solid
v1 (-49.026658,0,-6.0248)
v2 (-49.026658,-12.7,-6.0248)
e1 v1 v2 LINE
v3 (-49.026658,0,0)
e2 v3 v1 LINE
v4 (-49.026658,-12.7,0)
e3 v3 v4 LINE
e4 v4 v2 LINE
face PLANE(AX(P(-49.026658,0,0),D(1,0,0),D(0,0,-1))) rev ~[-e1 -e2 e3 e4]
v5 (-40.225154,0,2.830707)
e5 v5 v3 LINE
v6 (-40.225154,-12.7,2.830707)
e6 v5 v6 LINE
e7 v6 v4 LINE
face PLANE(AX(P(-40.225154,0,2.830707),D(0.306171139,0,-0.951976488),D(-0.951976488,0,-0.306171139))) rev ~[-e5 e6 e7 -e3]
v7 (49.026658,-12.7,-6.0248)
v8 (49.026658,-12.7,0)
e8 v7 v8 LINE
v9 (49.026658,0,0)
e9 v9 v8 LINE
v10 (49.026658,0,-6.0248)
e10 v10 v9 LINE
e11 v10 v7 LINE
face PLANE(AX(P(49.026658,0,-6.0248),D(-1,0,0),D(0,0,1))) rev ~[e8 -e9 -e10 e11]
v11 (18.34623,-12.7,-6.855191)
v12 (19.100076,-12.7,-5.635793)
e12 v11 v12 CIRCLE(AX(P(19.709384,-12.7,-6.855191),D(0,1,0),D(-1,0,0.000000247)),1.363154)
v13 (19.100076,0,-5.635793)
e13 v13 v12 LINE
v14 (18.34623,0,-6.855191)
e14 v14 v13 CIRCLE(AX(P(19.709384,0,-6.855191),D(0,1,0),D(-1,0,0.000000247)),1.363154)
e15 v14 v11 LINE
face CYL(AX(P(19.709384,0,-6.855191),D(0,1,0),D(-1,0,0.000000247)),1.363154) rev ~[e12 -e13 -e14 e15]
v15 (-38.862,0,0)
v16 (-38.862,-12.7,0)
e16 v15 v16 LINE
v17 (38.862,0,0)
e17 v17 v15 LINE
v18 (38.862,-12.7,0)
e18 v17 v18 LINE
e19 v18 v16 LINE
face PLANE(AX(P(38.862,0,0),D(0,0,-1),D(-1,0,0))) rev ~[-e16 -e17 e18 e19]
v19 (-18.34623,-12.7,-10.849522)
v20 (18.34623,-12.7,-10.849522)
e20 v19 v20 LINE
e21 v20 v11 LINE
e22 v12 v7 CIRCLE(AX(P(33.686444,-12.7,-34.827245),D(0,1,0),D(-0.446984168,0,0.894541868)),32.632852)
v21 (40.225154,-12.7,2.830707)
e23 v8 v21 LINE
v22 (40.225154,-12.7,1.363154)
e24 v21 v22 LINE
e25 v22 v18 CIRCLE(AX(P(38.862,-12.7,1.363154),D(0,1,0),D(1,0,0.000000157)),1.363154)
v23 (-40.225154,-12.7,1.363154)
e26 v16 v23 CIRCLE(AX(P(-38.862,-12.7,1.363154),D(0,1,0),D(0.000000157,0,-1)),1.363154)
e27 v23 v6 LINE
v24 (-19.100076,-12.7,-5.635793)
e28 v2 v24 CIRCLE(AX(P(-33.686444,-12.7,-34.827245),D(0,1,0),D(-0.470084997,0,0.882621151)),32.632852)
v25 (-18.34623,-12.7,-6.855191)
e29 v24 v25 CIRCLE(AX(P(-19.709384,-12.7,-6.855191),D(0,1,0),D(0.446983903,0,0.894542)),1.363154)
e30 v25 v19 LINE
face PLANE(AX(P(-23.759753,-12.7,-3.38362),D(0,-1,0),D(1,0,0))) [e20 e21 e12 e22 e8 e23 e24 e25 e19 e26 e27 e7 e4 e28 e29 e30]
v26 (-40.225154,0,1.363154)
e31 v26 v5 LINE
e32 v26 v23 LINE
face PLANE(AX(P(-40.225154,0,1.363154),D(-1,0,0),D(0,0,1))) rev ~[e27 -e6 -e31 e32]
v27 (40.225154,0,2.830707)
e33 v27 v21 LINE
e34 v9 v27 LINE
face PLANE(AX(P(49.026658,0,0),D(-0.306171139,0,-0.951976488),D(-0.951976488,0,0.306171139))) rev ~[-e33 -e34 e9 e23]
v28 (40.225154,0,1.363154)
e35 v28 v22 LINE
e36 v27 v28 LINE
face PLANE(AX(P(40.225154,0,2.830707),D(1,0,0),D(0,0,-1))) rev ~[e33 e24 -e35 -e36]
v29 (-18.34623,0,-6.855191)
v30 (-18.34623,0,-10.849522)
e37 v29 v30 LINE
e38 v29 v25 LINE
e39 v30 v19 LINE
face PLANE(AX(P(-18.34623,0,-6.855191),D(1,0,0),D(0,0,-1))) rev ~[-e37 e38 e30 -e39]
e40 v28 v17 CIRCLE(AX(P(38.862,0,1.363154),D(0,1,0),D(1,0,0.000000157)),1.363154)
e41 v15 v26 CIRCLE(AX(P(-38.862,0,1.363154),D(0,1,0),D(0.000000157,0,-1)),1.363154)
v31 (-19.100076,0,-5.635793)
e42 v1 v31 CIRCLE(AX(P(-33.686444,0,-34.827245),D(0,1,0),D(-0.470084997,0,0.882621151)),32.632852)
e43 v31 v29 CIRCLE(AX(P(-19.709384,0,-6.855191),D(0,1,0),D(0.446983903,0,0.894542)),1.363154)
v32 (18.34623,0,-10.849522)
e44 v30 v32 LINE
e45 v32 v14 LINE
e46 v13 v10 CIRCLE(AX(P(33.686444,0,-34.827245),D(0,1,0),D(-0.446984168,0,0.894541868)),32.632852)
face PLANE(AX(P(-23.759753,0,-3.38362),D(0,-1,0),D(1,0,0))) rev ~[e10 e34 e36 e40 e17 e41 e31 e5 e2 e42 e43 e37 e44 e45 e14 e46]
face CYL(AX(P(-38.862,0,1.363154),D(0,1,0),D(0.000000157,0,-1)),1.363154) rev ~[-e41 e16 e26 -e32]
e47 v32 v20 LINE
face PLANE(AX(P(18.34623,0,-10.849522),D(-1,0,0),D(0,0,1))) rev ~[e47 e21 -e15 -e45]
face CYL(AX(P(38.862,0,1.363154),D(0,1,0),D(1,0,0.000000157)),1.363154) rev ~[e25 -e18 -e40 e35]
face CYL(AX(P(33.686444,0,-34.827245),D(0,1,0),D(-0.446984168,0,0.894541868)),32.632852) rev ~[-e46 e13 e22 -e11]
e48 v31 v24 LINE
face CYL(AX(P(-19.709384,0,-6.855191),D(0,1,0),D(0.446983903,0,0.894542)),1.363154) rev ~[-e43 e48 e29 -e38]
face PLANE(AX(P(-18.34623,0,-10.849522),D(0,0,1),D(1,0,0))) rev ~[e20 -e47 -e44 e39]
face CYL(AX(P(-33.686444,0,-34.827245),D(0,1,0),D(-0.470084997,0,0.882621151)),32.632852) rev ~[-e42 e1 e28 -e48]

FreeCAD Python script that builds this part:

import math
import FreeCAD as App
import Part
import Sketcher
Q = App.Units.Quantity

doc = App.newDocument("Part")
body = doc.addObject("PartDesign::Body", "Body")

sketch1 = body.newObject("Sketcher::SketchObject", "Sketch")
sketch1.AttachmentSupport = (doc.getObject("XZ_Plane"), [""])
sketch1.MapMode = "FlatFace"
sketch1.addGeometry([
    Part.ArcOfCircle(Part.Circle(App.Vector(-38.9, 1.4, 0), App.Vector(0, 0, 1), 1.4), math.radians(180), math.radians(270)),
    Part.LineSegment(App.Vector(-40.2, 1.4, 0), App.Vector(-40.2, 2.8, 0)),
    Part.LineSegment(App.Vector(-40.2, 2.8, 0), App.Vector(-49, 0, 0)),
    Part.LineSegment(App.Vector(-49, 0, 0), App.Vector(-49, -6, 0)),
    Part.ArcOfCircle(Part.Circle(App.Vector(-33.7, -34.8, 0), App.Vector(0, 0, 1), 32.6), math.radians(63), math.radians(118)),
    Part.ArcOfCircle(Part.Circle(App.Vector(-19.7, -6.9, 0), App.Vector(0, 0, 1), 1.4), math.radians(0), math.radians(63)),
    Part.LineSegment(App.Vector(-18.3, -6.9, 0), App.Vector(-18.3, -10.8, 0)),
    Part.LineSegment(App.Vector(-18.3, -10.8, 0), App.Vector(18.3, -10.8, 0)),
    Part.LineSegment(App.Vector(18.3, -10.8, 0), App.Vector(18.3, -6.9, 0)),
    Part.ArcOfCircle(Part.Circle(App.Vector(19.7, -6.9, 0), App.Vector(0, 0, 1), 1.4), math.radians(117), math.radians(180)),
    Part.ArcOfCircle(Part.Circle(App.Vector(33.7, -34.8, 0), App.Vector(0, 0, 1), 32.6), math.radians(62), math.radians(117)),
    Part.LineSegment(App.Vector(49, -6, 0), App.Vector(49, 0, 0)),
    Part.LineSegment(App.Vector(49, 0, 0), App.Vector(40.2, 2.8, 0)),
    Part.LineSegment(App.Vector(40.2, 2.8, 0), App.Vector(40.2, 1.4, 0)),
    Part.ArcOfCircle(Part.Circle(App.Vector(38.9, 1.4, 0), App.Vector(0, 0, 1), 1.4), math.radians(-90), math.radians(0)),
    Part.LineSegment(App.Vector(38.9, 0, 0), App.Vector(-38.9, 0, 0)),
], False)
sketch1.addConstraint([
    Sketcher.Constraint("Tangent", 0, 1, 1, 1),
    Sketcher.Constraint("Coincident", 1, 2, 2, 1),
    Sketcher.Constraint("Coincident", 2, 2, 3, 1),
    Sketcher.Constraint("Coincident", 3, 2, 4, 2),
    Sketcher.Constraint("Tangent", 4, 1, 5, 2),
    Sketcher.Constraint("Tangent", 5, 1, 6, 1),
    Sketcher.Constraint("Coincident", 6, 2, 7, 1),
    Sketcher.Constraint("Coincident", 7, 2, 8, 1),
    Sketcher.Constraint("Tangent", 8, 2, 9, 2),
    Sketcher.Constraint("Tangent", 9, 1, 10, 2),
    Sketcher.Constraint("Coincident", 10, 1, 11, 1),
    Sketcher.Constraint("Coincident", 11, 2, 12, 1),
    Sketcher.Constraint("Coincident", 12, 2, 13, 1),
    Sketcher.Constraint("Tangent", 13, 2, 14, 2),
    Sketcher.Constraint("Tangent", 14, 1, 15, 1),
    Sketcher.Constraint("Tangent", 15, 2, 0, 2),
    Sketcher.Constraint("Vertical", 1),
    Sketcher.Constraint("Vertical", 3),
    Sketcher.Constraint("Vertical", 6),
    Sketcher.Constraint("Horizontal", 7),
    Sketcher.Constraint("Vertical", 8),
    Sketcher.Constraint("Vertical", 11),
    Sketcher.Constraint("Vertical", 13),
    Sketcher.Constraint("Horizontal", 15),
    Sketcher.Constraint("Equal", 0, 5),
    Sketcher.Constraint("Equal", 5, 9),
    Sketcher.Constraint("Equal", 4, 10),
    Sketcher.Constraint("Equal", 9, 14),
    Sketcher.Constraint("Symmetric", 2, 2, 11, 2, -1, 1),
    Sketcher.Constraint("Symmetric", 14, 1, 15, 2, -1, 1),
    Sketcher.Constraint("Symmetric", 5, 3, 9, 3, -2),
    Sketcher.Constraint("PointOnObject", 2, 2, -1),
    Sketcher.Constraint("Horizontal", 4, 3, 10, 3),
    Sketcher.Constraint("Horizontal", 1, 2, 12, 2),
    Sketcher.Constraint("DistanceX", 15, 2, 15, 1, Q("3.06 in")),
    Sketcher.Constraint("Radius", 4, 32.632852),
    Sketcher.Constraint("DistanceY", 3, 2, 3, 1, 6.0248),
    Sketcher.Constraint("Radius", 0, 1.363154),
    Sketcher.Constraint("DistanceX", 7, 1, 7, 2, 36.69246),
    Sketcher.Constraint("DistanceY", 6, 2, 6, 1, 3.994331),
    Sketcher.Constraint("DistanceY", 4, 3, 0, 3, 36.190399),
    Sketcher.Constraint("DistanceY", 5, 3, 1, 2, 9.685898),
    Sketcher.Constraint("DistanceY", 9, 3, 9, 1, 1.219398),
])
pad1 = body.newObject("PartDesign::Pad", "Pad")
pad1.Profile = sketch1
pad1.Length = Q("0.5 in")

doc.recompute()
